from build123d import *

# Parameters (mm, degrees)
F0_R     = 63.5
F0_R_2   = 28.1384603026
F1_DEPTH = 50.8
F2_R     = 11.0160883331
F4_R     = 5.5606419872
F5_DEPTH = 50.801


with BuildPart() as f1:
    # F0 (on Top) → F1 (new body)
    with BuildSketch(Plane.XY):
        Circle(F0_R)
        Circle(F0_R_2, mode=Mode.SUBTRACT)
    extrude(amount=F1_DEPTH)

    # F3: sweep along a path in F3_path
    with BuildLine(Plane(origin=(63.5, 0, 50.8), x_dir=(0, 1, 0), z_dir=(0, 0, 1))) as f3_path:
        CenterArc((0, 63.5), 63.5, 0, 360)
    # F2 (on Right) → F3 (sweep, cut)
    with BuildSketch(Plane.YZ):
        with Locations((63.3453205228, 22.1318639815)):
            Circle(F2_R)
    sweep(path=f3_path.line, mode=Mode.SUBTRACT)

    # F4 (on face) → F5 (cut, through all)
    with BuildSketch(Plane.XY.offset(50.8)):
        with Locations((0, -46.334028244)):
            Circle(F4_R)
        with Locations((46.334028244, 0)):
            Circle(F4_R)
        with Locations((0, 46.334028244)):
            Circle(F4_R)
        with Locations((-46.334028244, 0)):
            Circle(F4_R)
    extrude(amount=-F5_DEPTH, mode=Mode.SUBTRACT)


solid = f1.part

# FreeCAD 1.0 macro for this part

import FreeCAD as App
import Part
import Sketcher
Q = App.Units.Quantity

doc = App.newDocument("Part")
body = doc.addObject("PartDesign::Body", "Body")

# Sketch on XY plane
sketch1 = body.newObject("Sketcher::SketchObject", "Sketch")
sketch1.AttachmentSupport = (doc.getObject("XY_Plane"), [""])
sketch1.MapMode = "FlatFace"
sketch1.addGeometry(Part.Circle(App.Vector(0, 0, 0), App.Vector(0, 0, 1), 64), False)
sketch1.addGeometry(Part.Circle(App.Vector(0, 0, 0), App.Vector(0, 0, 1), 28), False)
sketch1.addConstraint(Sketcher.Constraint("Coincident", 0, 3, -1, 1))
sketch1.addConstraint(Sketcher.Constraint("Coincident", 1, 3, -1, 1))
sketch1.addConstraint(Sketcher.Constraint("Diameter", 0, Q("5 in")))
sketch1.addConstraint(Sketcher.Constraint("Diameter", 1, Q("56.276921 mm")))
pad1 = body.newObject("PartDesign::Pad", "Pad")
pad1.Profile = sketch1
pad1.Length = Q("2 in")

# Sketch on YZ plane
sketch2 = body.newObject("Sketcher::SketchObject", "Sketch001")
sketch2.AttachmentSupport = (doc.getObject("YZ_Plane"), [""])
sketch2.MapMode = "FlatFace"
sketch2.addGeometry(Part.Circle(App.Vector(63, 22, 0), App.Vector(0, 0, 1), 11), False)
sketch2.addConstraint(Sketcher.Constraint("Diameter", 0, Q("22.032177 mm")))
sketch2.addConstraint(Sketcher.Constraint("DistanceX", -1, 1, 0, 3, Q("63.345321 mm")))
sketch2.addConstraint(Sketcher.Constraint("DistanceY", -1, 1, 0, 3, Q("22.131864 mm")))

# Sketch on XY plane
sketch3 = body.newObject("Sketcher::SketchObject", "Sketch002")
sketch3.AttachmentSupport = (doc.getObject("XY_Plane"), [""])
sketch3.MapMode = "FlatFace"
sketch3.AttachmentOffset = App.Placement(App.Vector(0, 0, 2 * 25.4), App.Rotation())
sketch3.addGeometry(Part.Circle(App.Vector(0, 0, 0), App.Vector(0, 0, 1), 64), False)
sketch3.addConstraint(Sketcher.Constraint("Coincident", 0, 3, -1, 1))
sketch3.addConstraint(Sketcher.Constraint("Diameter", 0, Q("5 in")))
doc.recompute()

subtractivepipe = body.newObject("PartDesign::SubtractivePipe", "SubtractivePipe")
subtractivepipe.Profile = sketch2
subtractivepipe.Spine = (sketch3, ["Edge1"])

# Sketch on XY plane
sketch4 = body.newObject("Sketcher::SketchObject", "Sketch003")
sketch4.AttachmentSupport = (doc.getObject("XY_Plane"), [""])
sketch4.MapMode = "FlatFace"
sketch4.AttachmentOffset = App.Placement(App.Vector(0, 0, 2 * 25.4), App.Rotation())
sketch4.addGeometry(Part.Circle(App.Vector(0, -46, 0), App.Vector(0, 0, 1), 6), False)
sketch4.addGeometry(Part.Circle(App.Vector(46, 0, 0), App.Vector(0, 0, 1), 6), False)
sketch4.addGeometry(Part.Circle(App.Vector(0, 46, 0), App.Vector(0, 0, 1), 6), False)
sketch4.addGeometry(Part.Circle(App.Vector(-46, 0, 0), App.Vector(0, 0, 1), 6), False)
sketch4.addConstraint(Sketcher.Constraint("Equal", 0, 1))
sketch4.addConstraint(Sketcher.Constraint("Equal", 1, 2))
sketch4.addConstraint(Sketcher.Constraint("Equal", 2, 3))
sketch4.addConstraint(Sketcher.Constraint("Symmetric", 0, 3, 2, 3, -1, 1))
sketch4.addConstraint(Sketcher.Constraint("Symmetric", 1, 3, 3, 3, -1, 1))
sketch4.addConstraint(Sketcher.Constraint("PointOnObject", 0, 3, -2))
sketch4.addConstraint(Sketcher.Constraint("PointOnObject", 1, 3, -1))
sketch4.addConstraint(Sketcher.Constraint("Diameter", 0, Q("11.121284 mm")))
sketch4.addConstraint(Sketcher.Constraint("DistanceY", 0, 3, -1, 1, Q("46.334028 mm")))
sketch4.addConstraint(Sketcher.Constraint("DistanceX", -1, 1, 1, 3, Q("46.334028 mm")))
pocket1 = body.newObject("PartDesign::Pocket", "Pocket")
pocket1.Profile = sketch4
pocket1.Type = "ThroughAll"

doc.recompute()
